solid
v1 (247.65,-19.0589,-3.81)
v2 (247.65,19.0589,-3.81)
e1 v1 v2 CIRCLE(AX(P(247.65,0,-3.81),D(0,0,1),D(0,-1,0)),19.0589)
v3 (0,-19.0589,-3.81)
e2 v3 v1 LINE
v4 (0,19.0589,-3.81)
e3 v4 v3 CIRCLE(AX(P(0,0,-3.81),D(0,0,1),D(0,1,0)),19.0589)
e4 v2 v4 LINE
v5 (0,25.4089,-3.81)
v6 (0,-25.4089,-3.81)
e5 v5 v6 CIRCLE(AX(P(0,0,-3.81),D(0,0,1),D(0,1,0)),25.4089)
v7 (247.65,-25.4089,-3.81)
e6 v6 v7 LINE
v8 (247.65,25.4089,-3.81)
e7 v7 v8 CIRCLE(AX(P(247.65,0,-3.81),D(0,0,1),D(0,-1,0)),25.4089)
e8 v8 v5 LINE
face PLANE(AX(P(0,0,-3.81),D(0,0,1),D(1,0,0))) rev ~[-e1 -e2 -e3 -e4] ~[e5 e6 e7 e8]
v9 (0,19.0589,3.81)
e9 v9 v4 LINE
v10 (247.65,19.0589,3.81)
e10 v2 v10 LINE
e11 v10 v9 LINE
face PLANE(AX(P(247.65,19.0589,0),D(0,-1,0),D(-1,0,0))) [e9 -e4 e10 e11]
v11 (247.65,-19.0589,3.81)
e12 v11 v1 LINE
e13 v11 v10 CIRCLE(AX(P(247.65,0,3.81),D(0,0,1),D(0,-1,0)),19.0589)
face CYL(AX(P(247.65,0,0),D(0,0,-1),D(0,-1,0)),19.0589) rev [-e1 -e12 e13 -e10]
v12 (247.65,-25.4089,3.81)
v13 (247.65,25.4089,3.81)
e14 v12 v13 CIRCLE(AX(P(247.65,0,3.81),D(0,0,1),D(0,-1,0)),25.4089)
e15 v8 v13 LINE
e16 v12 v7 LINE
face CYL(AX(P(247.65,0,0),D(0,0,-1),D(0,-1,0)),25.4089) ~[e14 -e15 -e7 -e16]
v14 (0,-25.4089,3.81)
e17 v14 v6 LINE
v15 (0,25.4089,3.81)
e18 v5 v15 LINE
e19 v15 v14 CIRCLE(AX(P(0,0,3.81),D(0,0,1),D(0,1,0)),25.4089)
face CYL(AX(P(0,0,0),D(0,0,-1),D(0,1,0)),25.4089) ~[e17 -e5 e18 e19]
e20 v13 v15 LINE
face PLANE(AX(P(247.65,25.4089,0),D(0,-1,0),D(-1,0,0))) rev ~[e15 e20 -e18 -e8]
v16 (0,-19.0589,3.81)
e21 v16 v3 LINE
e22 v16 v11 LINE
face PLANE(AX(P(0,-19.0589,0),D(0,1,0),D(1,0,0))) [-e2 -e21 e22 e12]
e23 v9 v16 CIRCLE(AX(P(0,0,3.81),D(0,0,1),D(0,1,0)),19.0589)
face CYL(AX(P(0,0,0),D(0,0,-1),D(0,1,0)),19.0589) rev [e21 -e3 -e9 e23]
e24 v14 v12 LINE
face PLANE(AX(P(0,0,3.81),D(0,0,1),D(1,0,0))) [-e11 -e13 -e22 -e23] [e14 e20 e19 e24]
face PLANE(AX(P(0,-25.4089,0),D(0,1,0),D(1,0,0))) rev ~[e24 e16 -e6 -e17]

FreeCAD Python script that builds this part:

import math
import FreeCAD as App
import Part
import Sketcher
Q = App.Units.Quantity

doc = App.newDocument("Part")
body = doc.addObject("PartDesign::Body", "Body")

sketch1 = body.newObject("Sketcher::SketchObject", "Sketch")
sketch1.AttachmentSupport = (doc.getObject("XY_Plane"), [""])
sketch1.MapMode = "FlatFace"
sketch1.addGeometry(Part.ArcOfCircle(Part.Circle(App.Vector(247.65, 0, 0), App.Vector(0, 0, 1), 25.4089), math.radians(-90), math.radians(90)), False)
sketch1.addGeometry(Part.LineSegment(App.Vector(247.65, 25.4089, 0), App.Vector(0, 25.4089, 0)), False)
sketch1.addGeometry(Part.ArcOfCircle(Part.Circle(App.Vector(0, 0, 0), App.Vector(0, 0, 1), 25.4089), math.radians(90), math.radians(270)), False)
sketch1.addGeometry(Part.LineSegment(App.Vector(0, -25.4089, 0), App.Vector(247.65, -25.4089, 0)), False)
sketch1.addGeometry(Part.LineSegment(App.Vector(0, 19.0589, 0), App.Vector(247.65, 19.0589, 0)), False)
sketch1.addGeometry(Part.ArcOfCircle(Part.Circle(App.Vector(247.65, 0, 0), App.Vector(0, 0, 1), 19.0589), math.radians(-90), math.radians(90)), False)
sketch1.addGeometry(Part.LineSegment(App.Vector(247.65, -19.0589, 0), App.Vector(0, -19.0589, 0)), False)
sketch1.addGeometry(Part.ArcOfCircle(Part.Circle(App.Vector(0, 0, 0), App.Vector(0, 0, 1), 19.0589), math.radians(90), math.radians(270)), False)
sketch1.addConstraint(Sketcher.Constraint("Tangent", 0, 2, 1, 1))
sketch1.addConstraint(Sketcher.Constraint("Tangent", 1, 2, 2, 1))
sketch1.addConstraint(Sketcher.Constraint("Tangent", 2, 2, 3, 1))
sketch1.addConstraint(Sketcher.Constraint("Tangent", 3, 2, 0, 1))
sketch1.addConstraint(Sketcher.Constraint("Tangent", 4, 2, 5, 2))
sketch1.addConstraint(Sketcher.Constraint("Tangent", 5, 1, 6, 1))
sketch1.addConstraint(Sketcher.Constraint("Tangent", 6, 2, 7, 2))
sketch1.addConstraint(Sketcher.Constraint("Tangent", 7, 1, 4, 1))
sketch1.addConstraint(Sketcher.Constraint("Horizontal", 1))
sketch1.addConstraint(Sketcher.Constraint("Horizontal", 3))
sketch1.addConstraint(Sketcher.Constraint("Horizontal", 4))
sketch1.addConstraint(Sketcher.Constraint("Horizontal", 6))
sketch1.addConstraint(Sketcher.Constraint("Coincident", 2, 3, -1, 1))
sketch1.addConstraint(Sketcher.Constraint("Coincident", 7, 3, -1, 1))
sketch1.addConstraint(Sketcher.Constraint("Vertical", 5, 3, 0, 2))
sketch1.addConstraint(Sketcher.Constraint("DistanceX", 1, 2, 1, 1, Q("9.75 in")))
sketch1.addConstraint(Sketcher.Constraint("Radius", 0, 25.409))
sketch1.addConstraint(Sketcher.Constraint("Radius", 5, 19.059))
pad1 = body.newObject("PartDesign::Pad", "Pad")
pad1.Profile = sketch1
pad1.Length = Q("0.3 in")
pad1.Midplane = True

doc.recompute()
